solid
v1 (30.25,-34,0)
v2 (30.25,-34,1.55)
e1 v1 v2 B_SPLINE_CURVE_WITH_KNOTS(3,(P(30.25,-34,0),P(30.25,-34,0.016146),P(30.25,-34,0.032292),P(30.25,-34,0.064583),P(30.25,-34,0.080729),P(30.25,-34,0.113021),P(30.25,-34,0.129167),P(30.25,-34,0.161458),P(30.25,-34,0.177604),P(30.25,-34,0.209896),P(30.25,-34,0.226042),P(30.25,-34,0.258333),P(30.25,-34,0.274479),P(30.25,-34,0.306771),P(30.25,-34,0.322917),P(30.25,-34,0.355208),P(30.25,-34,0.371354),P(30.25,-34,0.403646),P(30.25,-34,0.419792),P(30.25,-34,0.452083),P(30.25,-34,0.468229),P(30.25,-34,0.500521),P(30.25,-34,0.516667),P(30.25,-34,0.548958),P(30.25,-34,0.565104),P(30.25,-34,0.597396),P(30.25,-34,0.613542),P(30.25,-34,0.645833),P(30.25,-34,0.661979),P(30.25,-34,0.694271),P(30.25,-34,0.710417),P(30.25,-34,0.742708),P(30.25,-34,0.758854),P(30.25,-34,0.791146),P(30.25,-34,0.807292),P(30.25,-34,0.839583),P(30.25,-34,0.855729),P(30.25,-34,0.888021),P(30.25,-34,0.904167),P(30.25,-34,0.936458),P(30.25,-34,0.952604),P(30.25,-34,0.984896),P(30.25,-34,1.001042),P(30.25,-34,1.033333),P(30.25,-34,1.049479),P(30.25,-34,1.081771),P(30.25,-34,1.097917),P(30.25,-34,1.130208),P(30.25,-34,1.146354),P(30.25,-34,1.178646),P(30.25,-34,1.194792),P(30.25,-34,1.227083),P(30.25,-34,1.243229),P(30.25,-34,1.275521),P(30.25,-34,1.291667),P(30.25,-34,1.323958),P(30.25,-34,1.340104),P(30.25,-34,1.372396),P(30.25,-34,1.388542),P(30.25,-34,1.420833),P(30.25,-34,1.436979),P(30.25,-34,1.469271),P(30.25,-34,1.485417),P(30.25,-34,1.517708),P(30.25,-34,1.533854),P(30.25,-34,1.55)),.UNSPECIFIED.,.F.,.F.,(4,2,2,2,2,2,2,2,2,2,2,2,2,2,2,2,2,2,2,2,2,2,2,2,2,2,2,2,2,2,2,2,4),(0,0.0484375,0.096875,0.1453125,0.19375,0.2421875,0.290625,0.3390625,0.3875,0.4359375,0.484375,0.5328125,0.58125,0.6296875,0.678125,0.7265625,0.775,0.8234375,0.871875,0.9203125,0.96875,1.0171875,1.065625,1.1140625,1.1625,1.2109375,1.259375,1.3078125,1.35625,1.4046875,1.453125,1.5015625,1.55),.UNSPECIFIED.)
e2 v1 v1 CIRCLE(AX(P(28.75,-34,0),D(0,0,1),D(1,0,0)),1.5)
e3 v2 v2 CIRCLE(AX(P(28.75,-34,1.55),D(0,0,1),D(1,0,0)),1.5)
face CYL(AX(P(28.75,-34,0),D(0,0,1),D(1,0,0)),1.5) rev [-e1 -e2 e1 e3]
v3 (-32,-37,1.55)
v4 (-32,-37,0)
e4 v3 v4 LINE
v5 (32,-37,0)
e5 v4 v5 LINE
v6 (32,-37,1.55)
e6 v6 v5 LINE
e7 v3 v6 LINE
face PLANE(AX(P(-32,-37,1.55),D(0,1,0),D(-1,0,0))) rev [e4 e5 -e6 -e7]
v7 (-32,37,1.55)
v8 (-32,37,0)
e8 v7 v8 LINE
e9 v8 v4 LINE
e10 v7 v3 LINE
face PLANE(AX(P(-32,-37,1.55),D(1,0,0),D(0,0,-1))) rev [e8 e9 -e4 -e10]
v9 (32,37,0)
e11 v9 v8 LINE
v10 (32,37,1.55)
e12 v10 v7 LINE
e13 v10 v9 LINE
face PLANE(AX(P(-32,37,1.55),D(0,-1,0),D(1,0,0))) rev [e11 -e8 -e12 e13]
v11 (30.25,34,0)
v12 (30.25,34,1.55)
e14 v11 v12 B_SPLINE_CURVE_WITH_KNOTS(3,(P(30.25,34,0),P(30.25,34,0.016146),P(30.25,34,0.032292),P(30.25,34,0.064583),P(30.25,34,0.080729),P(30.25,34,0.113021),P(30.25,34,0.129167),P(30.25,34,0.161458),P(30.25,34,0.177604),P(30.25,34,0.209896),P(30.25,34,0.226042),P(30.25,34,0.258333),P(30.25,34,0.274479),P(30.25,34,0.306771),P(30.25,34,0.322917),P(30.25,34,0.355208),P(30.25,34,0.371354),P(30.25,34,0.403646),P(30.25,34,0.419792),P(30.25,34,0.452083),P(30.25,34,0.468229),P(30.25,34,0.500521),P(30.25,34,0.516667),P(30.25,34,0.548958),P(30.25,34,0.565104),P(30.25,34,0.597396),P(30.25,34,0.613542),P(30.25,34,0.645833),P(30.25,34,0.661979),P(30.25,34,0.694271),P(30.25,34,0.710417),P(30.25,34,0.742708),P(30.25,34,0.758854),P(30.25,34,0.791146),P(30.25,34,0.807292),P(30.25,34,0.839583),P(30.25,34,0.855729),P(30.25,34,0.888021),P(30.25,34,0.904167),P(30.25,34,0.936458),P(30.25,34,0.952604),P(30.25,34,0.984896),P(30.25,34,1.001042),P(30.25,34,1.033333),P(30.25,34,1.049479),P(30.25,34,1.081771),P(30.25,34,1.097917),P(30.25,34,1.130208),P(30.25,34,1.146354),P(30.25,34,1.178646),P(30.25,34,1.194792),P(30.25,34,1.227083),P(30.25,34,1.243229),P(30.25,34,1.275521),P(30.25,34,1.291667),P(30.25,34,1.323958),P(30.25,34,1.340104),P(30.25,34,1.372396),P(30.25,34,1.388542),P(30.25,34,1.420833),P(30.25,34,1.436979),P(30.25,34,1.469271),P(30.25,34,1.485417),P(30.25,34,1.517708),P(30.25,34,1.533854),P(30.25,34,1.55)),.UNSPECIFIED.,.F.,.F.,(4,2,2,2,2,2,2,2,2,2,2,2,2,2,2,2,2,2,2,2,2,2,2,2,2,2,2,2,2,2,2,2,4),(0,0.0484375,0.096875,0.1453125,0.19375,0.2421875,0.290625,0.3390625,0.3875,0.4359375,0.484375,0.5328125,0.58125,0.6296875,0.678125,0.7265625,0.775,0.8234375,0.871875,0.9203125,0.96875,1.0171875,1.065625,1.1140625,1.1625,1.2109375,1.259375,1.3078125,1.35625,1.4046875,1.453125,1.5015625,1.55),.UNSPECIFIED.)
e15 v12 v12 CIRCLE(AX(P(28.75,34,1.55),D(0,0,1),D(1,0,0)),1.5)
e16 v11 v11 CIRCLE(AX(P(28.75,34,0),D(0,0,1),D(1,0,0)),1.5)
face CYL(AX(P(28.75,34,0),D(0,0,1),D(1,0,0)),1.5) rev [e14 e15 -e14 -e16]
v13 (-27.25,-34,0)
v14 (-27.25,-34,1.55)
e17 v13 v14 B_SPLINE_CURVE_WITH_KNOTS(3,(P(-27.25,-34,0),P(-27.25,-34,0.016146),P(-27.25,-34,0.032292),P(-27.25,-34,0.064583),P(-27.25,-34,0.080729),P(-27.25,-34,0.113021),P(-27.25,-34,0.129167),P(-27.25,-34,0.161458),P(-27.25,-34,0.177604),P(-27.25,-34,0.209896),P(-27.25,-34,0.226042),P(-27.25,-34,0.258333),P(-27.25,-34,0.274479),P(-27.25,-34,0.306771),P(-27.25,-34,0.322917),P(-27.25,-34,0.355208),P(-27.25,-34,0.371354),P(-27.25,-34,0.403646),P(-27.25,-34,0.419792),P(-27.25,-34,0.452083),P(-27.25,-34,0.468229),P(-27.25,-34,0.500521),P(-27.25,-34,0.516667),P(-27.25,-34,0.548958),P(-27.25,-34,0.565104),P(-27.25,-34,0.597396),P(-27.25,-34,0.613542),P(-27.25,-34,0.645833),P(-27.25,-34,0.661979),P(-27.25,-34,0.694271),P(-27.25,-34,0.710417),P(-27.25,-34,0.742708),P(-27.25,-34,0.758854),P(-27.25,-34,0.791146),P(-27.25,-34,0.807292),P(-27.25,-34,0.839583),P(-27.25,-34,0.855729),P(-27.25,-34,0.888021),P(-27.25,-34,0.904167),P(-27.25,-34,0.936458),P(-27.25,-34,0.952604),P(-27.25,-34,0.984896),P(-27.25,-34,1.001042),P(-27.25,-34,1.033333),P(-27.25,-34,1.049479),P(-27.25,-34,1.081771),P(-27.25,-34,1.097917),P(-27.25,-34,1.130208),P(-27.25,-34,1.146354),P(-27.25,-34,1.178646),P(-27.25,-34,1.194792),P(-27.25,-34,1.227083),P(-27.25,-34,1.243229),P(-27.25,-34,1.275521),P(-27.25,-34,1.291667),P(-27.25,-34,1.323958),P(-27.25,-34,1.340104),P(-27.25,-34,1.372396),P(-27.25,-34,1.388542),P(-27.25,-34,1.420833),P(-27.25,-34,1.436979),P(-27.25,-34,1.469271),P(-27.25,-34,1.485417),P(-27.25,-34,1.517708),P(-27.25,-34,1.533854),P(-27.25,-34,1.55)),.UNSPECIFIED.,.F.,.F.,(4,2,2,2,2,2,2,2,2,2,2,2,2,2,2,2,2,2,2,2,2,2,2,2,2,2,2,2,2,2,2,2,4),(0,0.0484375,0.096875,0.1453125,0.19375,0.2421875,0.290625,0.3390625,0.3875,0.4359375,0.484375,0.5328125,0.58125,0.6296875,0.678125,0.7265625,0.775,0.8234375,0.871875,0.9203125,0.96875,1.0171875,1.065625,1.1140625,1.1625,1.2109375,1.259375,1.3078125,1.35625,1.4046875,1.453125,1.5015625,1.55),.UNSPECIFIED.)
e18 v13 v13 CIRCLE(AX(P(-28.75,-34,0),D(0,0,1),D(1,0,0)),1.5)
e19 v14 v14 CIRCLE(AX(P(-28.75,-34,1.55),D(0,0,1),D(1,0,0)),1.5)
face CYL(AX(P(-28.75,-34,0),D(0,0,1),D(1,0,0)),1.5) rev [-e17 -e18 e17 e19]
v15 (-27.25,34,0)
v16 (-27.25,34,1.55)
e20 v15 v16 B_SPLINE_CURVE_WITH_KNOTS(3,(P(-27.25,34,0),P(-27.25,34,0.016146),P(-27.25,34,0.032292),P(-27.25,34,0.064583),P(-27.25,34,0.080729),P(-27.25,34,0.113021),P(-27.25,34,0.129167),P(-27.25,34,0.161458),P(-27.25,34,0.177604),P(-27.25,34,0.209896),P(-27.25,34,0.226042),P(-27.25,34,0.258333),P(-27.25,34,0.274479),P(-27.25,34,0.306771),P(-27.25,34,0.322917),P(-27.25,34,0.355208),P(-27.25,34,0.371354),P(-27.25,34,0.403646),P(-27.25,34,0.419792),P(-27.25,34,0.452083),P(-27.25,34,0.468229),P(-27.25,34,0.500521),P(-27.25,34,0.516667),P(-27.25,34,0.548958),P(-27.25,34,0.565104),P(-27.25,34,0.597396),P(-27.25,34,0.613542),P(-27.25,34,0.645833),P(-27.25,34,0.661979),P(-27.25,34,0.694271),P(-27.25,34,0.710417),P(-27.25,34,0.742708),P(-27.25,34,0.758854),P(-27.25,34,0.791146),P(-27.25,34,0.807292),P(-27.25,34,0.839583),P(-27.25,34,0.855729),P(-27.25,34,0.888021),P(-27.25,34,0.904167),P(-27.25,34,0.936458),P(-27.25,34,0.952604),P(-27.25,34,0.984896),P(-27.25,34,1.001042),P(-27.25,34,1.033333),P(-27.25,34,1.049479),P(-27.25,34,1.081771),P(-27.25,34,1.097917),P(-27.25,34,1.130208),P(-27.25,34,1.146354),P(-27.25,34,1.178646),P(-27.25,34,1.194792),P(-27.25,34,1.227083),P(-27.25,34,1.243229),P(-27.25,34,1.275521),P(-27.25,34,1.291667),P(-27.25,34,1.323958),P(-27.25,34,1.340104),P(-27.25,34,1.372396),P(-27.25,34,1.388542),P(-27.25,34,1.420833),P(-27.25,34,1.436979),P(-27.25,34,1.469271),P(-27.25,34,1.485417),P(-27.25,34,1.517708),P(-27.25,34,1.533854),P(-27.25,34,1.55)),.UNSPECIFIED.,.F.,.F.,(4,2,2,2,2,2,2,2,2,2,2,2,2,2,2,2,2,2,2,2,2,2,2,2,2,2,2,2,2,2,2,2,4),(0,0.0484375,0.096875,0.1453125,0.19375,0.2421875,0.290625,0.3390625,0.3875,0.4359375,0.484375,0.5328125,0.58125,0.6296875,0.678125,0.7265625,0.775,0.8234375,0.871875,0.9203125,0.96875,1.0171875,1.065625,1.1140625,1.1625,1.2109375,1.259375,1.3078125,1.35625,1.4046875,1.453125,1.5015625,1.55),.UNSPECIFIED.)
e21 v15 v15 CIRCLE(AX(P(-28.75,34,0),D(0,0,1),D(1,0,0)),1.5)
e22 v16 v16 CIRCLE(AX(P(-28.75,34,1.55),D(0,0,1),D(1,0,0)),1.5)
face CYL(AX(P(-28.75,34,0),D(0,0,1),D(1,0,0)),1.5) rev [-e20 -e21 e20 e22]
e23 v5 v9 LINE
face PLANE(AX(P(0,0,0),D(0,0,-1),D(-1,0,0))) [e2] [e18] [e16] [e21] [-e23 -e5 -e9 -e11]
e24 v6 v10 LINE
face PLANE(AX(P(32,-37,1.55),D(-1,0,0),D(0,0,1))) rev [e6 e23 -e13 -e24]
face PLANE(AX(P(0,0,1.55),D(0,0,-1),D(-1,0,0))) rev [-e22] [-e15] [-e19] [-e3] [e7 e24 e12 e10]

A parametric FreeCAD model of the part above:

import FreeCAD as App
import Part
import Sketcher

V = App.Vector
Q = App.Units.Quantity

doc = App.newDocument("Part")
params = doc.addObject("Spreadsheet::Sheet", "Params")
for row, (alias, value) in enumerate([
    ("sketch1_width", "64 mm"),
    ("sketch1_height", "74 mm"),
    ("pad1_length", "1.55 mm"),
    ("sketch2_diameter", "3 mm"),
    ("pocket1_length", "1.55 mm"),
], start=1):
    params.set(f"A{row}", alias)
    params.set(f"B{row}", "=" + value)
    params.setAlias(f"B{row}", alias)

body = doc.addObject("PartDesign::Body", "Body")

# Sketch on XY plane
sketch1 = body.newObject("Sketcher::SketchObject", "Sketch")
sketch1.AttachmentSupport = (doc.getObject("XY_Plane"), [""])
sketch1.MapMode = "FlatFace"
sketch1.addGeometry([
    Part.LineSegment(V(-32, 37, 0), V(-32, -37, 0)),
    Part.LineSegment(V(-32, -37, 0), V(32, -37, 0)),
    Part.LineSegment(V(32, -37, 0), V(32, 37, 0)),
    Part.LineSegment(V(32, 37, 0), V(-32, 37, 0)),
], False)
sketch1.addConstraint([
    Sketcher.Constraint("Coincident", 0, 2, 1, 1),
    Sketcher.Constraint("Coincident", 1, 2, 2, 1),
    Sketcher.Constraint("Coincident", 2, 2, 3, 1),
    Sketcher.Constraint("Coincident", 3, 2, 0, 1),
    Sketcher.Constraint("Vertical", 0),
    Sketcher.Constraint("Horizontal", 1),
    Sketcher.Constraint("Vertical", 2),
    Sketcher.Constraint("Horizontal", 3),
    Sketcher.Constraint("Symmetric", 0, 2, 2, 2, -1, 1),
    Sketcher.Constraint("DistanceX", 1, 1, 1, 2, Q("64 mm")),
    Sketcher.Constraint("DistanceY", 0, 2, 0, 1, Q("74 mm")),
])
sketch1.setExpression("Constraints[9]", "Params.sketch1_width")
sketch1.setExpression("Constraints[10]", "Params.sketch1_height")
pad1 = body.newObject("PartDesign::Pad", "Pad")
pad1.Profile = sketch1
pad1.setExpression("Length", "Params.pad1_length")

# Sketch on XY plane
sketch2 = body.newObject("Sketcher::SketchObject", "Sketch001")
sketch2.AttachmentSupport = (doc.getObject("XY_Plane"), [""])
sketch2.MapMode = "FlatFace"
sketch2.AttachmentOffset = App.Placement(V(0, 0, 1.55), App.Rotation())
sketch2.addGeometry([
    Part.Circle(V(-28.8, 34, 0), V(0, 0, 1), 1.5),
    Part.Circle(V(28.8, 34, 0), V(0, 0, 1), 1.5),
    Part.Circle(V(28.8, -34, 0), V(0, 0, 1), 1.5),
    Part.Circle(V(-28.8, -34, 0), V(0, 0, 1), 1.5),
], False)
sketch2.addConstraint([
    Sketcher.Constraint("Equal", 0, 1),
    Sketcher.Constraint("Equal", 1, 2),
    Sketcher.Constraint("Equal", 2, 3),
    Sketcher.Constraint("Symmetric", 0, 3, 2, 3, -1, 1),
    Sketcher.Constraint("Symmetric", 1, 3, 3, 3, -1, 1),
    Sketcher.Constraint("Symmetric", 0, 3, 1, 3, -2),
    Sketcher.Constraint("Diameter", 0, Q("3 mm")),
    Sketcher.Constraint("DistanceY", -1, 1, 0, 3, Q("34 mm")),
    Sketcher.Constraint("DistanceX", 0, 3, 1, 3, Q("57.5 mm")),
])
sketch2.setExpression("Constraints[6]", "Params.sketch2_diameter")
pocket1 = body.newObject("PartDesign::Pocket", "Pocket")
pocket1.Profile = sketch2
pocket1.setExpression("Length", "Params.pocket1_length")

doc.recompute()
